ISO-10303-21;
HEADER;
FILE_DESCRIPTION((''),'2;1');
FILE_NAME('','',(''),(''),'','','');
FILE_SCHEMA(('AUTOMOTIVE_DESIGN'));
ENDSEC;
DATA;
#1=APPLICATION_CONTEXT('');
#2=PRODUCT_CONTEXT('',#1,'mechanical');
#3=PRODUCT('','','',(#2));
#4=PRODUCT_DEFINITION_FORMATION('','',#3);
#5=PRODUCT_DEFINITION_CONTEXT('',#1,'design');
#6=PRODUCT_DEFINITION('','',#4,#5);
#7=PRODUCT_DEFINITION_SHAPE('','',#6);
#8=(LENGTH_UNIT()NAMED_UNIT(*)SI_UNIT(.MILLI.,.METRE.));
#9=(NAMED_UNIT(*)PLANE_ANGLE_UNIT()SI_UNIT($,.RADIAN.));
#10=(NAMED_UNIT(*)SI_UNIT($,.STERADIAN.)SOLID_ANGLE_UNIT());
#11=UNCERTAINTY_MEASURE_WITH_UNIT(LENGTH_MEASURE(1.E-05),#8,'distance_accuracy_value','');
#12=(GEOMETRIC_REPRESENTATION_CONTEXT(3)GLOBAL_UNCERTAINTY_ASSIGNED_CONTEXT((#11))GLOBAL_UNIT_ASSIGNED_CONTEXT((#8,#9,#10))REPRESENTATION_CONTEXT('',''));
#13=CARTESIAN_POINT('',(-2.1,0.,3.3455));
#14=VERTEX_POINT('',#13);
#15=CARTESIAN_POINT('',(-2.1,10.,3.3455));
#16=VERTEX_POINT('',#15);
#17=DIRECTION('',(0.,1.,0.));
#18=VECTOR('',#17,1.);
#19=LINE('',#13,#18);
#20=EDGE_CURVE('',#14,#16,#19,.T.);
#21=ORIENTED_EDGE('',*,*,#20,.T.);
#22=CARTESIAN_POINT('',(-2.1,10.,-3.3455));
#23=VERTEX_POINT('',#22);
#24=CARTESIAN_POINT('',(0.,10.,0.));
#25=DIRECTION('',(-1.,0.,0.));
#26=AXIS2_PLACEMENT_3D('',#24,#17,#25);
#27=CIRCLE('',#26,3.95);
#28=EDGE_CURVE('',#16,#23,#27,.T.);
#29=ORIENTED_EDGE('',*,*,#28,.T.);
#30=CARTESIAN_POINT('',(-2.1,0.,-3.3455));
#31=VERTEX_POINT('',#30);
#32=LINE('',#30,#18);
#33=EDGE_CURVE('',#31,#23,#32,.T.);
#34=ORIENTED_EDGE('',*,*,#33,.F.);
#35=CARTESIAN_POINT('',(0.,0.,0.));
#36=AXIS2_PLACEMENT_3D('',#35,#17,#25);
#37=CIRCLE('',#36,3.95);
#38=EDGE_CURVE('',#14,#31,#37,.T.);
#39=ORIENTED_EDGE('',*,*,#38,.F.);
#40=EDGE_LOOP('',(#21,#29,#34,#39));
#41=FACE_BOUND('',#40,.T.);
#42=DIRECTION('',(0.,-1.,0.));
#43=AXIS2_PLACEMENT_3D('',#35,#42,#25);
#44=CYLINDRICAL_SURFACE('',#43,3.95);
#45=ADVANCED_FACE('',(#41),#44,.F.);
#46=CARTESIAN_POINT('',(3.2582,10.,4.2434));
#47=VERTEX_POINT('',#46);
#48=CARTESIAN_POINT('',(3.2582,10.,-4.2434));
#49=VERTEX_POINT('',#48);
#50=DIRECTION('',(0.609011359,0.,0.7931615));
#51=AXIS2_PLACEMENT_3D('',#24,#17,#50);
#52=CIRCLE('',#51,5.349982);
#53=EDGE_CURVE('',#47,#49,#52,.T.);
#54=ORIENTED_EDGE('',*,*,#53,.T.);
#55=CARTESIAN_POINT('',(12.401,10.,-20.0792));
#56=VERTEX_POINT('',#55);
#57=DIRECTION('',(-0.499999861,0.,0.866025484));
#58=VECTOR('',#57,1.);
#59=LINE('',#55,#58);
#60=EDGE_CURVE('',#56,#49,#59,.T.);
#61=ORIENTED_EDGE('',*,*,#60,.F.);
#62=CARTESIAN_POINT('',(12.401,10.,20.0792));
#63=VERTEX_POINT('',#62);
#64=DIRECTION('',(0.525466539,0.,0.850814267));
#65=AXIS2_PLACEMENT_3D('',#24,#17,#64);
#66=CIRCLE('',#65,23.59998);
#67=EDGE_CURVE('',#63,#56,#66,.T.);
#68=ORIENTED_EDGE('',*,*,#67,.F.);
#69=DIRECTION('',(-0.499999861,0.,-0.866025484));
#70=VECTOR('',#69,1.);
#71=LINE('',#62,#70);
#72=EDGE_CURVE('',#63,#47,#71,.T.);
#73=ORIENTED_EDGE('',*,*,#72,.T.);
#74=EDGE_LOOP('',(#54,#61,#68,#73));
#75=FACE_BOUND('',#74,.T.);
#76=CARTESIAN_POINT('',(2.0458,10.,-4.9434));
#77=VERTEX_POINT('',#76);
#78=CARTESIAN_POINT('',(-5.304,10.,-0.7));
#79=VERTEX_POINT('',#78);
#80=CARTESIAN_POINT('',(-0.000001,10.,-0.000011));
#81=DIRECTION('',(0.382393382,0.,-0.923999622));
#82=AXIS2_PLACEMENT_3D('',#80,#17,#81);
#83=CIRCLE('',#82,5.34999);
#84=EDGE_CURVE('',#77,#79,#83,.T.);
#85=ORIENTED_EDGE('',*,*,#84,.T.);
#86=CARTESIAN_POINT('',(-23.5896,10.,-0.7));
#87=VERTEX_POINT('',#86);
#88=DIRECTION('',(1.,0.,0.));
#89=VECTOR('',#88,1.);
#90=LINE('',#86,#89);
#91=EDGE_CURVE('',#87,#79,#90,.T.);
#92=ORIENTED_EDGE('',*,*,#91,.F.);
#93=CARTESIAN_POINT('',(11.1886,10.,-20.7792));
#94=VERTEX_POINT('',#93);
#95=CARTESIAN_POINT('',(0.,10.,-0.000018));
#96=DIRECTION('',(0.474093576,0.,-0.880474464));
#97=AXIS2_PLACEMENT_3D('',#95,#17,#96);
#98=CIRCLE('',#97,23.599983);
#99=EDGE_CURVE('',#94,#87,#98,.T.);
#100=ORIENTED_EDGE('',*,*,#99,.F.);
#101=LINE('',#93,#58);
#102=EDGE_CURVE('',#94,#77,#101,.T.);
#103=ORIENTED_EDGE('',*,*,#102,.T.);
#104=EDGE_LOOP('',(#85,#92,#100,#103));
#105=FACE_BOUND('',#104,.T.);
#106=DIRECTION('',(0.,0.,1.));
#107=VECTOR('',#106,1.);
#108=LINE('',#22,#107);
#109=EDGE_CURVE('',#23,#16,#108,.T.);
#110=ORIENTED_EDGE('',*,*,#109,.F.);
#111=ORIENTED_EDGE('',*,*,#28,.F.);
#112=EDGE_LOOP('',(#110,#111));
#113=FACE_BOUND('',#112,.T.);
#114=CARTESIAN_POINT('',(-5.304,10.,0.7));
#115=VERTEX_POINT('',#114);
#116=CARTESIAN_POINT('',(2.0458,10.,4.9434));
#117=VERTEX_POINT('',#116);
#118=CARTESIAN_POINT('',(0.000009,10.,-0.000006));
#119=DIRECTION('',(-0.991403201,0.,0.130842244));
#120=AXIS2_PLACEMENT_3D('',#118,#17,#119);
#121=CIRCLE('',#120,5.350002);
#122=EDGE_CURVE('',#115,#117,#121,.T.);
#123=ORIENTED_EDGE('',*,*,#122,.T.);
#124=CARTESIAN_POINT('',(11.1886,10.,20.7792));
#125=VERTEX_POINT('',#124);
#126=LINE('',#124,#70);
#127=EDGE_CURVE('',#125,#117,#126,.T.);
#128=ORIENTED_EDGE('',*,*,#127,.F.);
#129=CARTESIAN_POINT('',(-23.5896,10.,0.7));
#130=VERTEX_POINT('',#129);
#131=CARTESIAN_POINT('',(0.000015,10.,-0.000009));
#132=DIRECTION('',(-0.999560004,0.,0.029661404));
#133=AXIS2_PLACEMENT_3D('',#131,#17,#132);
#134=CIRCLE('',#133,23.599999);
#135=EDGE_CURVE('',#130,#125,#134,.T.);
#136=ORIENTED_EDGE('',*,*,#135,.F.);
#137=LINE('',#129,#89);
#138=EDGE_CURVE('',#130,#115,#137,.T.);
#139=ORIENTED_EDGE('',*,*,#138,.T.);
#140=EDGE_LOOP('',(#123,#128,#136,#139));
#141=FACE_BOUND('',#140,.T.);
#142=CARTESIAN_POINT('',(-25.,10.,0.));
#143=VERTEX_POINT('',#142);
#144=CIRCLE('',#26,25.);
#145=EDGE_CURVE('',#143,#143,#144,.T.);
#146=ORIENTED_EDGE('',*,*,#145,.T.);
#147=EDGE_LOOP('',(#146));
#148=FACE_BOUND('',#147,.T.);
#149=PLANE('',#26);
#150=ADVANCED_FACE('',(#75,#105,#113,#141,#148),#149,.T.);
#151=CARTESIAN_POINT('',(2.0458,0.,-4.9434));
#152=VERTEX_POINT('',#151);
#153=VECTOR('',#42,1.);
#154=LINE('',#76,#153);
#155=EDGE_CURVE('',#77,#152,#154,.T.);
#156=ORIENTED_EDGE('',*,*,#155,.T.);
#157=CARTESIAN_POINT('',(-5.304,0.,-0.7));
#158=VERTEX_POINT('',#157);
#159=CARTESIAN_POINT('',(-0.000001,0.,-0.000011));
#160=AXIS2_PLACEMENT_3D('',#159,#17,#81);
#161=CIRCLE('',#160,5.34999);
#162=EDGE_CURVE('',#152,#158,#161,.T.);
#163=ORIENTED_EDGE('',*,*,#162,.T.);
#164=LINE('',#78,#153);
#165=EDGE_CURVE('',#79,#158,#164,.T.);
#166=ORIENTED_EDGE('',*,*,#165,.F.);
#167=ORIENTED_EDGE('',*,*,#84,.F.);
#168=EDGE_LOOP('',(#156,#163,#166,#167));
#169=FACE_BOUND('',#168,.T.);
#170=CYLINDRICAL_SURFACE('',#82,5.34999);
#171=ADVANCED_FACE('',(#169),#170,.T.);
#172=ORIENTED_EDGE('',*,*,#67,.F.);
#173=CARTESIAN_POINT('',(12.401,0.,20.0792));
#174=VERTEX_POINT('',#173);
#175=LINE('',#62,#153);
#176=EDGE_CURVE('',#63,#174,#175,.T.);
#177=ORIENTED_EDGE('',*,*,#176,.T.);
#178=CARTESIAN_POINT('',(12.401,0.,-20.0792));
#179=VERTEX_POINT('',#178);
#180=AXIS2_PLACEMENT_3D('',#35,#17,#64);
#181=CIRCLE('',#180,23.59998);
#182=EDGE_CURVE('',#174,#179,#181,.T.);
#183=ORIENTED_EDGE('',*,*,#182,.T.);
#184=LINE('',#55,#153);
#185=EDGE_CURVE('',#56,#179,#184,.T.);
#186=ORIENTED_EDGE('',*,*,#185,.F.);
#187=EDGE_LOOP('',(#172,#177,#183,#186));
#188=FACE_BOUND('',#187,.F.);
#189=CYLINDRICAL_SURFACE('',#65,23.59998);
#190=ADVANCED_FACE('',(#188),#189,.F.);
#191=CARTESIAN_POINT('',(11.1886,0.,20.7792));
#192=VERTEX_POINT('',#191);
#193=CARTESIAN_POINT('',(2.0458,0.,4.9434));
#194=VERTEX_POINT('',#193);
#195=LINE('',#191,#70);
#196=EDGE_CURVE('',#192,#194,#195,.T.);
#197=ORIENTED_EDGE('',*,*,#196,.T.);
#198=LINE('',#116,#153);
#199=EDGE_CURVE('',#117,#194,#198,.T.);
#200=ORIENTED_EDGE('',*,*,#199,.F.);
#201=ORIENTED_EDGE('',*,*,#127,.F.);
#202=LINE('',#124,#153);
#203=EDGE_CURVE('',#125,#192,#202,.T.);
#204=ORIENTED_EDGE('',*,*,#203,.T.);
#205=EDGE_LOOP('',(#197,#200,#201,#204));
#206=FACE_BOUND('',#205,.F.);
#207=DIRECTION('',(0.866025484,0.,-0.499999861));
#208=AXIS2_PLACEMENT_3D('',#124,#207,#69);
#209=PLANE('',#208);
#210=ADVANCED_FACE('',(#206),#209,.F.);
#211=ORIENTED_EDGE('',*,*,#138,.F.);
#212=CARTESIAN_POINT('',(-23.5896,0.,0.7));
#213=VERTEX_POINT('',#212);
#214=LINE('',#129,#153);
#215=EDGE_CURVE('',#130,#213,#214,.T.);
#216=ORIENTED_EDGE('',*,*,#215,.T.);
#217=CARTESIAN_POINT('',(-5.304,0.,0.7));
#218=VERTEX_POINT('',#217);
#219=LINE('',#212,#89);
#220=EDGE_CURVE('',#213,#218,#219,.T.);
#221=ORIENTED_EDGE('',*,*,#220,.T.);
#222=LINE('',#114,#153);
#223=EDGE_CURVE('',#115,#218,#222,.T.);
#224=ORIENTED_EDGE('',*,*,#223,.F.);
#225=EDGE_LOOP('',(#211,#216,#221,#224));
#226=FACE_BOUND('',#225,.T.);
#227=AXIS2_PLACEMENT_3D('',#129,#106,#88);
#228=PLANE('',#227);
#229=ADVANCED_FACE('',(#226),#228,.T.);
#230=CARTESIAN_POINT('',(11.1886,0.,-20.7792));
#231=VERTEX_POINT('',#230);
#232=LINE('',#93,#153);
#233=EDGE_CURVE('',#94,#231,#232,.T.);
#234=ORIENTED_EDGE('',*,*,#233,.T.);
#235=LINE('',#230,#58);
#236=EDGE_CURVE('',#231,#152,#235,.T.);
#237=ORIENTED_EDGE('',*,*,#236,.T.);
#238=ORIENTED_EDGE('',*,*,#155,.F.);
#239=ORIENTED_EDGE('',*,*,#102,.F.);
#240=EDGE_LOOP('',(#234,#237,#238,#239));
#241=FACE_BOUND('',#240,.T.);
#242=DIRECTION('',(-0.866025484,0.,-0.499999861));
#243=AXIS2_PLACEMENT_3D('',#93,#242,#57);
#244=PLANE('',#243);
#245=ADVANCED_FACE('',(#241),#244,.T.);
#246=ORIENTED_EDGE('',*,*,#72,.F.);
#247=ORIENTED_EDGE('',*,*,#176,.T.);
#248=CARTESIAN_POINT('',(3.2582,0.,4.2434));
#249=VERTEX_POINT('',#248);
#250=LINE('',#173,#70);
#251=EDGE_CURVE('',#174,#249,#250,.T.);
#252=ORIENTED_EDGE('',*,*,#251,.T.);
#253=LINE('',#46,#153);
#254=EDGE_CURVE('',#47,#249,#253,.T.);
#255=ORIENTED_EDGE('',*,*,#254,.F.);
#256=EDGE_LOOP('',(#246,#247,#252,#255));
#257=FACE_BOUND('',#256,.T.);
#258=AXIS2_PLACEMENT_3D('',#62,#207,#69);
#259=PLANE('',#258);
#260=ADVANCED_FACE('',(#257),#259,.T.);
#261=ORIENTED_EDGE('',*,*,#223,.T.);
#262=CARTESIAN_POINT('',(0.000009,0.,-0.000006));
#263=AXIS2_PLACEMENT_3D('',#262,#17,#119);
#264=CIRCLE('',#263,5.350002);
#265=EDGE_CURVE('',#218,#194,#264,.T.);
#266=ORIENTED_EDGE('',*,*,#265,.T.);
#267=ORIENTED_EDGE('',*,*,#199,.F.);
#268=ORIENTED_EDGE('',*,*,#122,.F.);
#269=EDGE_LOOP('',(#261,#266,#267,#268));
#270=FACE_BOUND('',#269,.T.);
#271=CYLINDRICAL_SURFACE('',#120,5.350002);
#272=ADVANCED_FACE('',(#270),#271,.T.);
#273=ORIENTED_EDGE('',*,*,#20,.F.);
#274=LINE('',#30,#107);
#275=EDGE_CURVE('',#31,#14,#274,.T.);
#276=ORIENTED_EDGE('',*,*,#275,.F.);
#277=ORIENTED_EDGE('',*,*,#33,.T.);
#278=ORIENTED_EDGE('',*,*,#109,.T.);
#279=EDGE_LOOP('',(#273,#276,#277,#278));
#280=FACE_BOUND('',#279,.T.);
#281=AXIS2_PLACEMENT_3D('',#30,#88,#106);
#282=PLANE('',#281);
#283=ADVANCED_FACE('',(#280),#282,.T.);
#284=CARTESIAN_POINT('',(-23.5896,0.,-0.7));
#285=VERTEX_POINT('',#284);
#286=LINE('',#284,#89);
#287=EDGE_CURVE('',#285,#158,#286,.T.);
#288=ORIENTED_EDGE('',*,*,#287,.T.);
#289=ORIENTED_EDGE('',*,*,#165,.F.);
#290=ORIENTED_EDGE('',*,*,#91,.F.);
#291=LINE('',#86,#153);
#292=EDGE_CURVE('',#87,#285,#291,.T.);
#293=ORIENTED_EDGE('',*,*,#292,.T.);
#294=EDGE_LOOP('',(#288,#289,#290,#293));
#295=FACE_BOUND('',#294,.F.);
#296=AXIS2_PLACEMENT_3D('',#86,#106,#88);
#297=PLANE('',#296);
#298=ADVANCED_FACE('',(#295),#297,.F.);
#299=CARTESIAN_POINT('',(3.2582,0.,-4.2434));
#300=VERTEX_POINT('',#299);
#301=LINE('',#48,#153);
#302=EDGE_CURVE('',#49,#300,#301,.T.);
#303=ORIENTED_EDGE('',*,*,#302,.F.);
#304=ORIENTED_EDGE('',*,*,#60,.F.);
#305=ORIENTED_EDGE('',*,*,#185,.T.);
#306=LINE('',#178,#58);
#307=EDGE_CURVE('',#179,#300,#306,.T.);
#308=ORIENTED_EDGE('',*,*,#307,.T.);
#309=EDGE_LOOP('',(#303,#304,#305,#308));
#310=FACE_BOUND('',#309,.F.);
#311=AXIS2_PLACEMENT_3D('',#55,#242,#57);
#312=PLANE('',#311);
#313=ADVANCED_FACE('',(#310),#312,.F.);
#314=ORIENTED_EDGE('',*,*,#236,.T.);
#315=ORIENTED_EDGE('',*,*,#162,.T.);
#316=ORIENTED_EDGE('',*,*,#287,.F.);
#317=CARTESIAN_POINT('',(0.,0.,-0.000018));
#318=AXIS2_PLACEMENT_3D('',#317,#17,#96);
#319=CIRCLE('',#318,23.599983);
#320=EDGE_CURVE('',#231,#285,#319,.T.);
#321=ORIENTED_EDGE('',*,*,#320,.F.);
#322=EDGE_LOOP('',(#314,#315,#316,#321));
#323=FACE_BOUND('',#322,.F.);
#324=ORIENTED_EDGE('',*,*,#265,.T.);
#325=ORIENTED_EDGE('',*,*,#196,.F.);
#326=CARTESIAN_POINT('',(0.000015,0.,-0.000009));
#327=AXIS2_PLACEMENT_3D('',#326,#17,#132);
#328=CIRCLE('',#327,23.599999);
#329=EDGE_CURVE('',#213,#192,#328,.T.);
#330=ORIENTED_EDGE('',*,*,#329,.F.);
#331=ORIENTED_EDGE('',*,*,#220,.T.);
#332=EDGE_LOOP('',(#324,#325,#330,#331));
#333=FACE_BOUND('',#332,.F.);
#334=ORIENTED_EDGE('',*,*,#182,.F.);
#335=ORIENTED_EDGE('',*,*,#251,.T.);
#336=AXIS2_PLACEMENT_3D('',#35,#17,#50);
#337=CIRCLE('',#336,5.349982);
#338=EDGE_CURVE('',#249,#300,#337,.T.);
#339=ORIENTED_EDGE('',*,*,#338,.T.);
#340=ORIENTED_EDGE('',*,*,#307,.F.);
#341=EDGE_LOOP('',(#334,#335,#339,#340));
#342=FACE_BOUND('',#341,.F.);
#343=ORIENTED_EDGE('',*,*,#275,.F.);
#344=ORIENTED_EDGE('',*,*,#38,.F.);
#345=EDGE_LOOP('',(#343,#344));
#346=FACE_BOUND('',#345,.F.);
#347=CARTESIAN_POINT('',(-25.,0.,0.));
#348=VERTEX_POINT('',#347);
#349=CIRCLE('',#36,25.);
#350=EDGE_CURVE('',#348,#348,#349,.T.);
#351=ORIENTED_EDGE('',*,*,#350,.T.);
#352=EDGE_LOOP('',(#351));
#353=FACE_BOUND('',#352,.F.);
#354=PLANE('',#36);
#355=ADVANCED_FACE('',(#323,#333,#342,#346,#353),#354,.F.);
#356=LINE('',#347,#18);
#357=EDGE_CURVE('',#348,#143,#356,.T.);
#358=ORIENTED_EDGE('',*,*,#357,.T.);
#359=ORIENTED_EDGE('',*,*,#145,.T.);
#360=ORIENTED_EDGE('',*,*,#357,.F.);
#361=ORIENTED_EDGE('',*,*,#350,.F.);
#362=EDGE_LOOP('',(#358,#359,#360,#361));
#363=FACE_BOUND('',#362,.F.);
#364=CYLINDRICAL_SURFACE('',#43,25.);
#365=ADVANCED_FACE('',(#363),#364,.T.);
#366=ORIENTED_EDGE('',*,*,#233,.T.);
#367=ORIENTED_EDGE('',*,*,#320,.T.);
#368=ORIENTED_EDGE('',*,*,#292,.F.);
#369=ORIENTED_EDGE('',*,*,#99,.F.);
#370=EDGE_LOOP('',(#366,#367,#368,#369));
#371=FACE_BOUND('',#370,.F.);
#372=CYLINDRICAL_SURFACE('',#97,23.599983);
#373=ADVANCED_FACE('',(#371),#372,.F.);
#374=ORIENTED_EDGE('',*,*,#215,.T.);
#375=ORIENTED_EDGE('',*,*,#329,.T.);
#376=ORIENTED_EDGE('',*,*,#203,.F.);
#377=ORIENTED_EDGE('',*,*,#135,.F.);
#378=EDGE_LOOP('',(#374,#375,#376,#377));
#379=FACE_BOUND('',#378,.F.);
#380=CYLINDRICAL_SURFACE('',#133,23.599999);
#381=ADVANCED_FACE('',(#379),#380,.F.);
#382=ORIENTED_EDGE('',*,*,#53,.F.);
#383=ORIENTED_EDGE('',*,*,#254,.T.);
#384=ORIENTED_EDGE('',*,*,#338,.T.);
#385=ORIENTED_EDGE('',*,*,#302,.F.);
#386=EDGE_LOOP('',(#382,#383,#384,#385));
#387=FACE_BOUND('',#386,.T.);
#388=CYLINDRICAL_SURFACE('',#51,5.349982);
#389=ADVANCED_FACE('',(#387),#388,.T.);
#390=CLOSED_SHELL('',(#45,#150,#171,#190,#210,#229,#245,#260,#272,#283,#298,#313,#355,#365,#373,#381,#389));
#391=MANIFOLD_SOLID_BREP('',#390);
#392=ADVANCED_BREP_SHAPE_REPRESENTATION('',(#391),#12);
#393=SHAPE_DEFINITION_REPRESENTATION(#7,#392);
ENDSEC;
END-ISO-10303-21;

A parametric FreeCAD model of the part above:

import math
import FreeCAD as App
import Part
import Sketcher

V = App.Vector
Q = App.Units.Quantity

doc = App.newDocument("Part")
params = doc.addObject("Spreadsheet::Sheet", "Params")
for row, (alias, value) in enumerate([
    ("sketch1_diameter", "50 mm"),
    ("sketch1_radius", "3.95 mm"),
    ("pad1_length", "10 mm"),
    ("sketch2_radius", "23.6 mm"),
    ("sketch2_radius2", "5.35 mm"),
    ("pocket1_length", "10 mm"),
], start=1):
    params.set(f"A{row}", alias)
    params.set(f"B{row}", "=" + value)
    params.setAlias(f"B{row}", alias)

body = doc.addObject("PartDesign::Body", "Body")

sketch1 = doc.addObject("Sketcher::SketchObject", "Sketch")
body.addObject(sketch1)
sketch1.AttachmentSupport = (doc.XZ_Plane, [""])
sketch1.MapMode = "FlatFace"
sketch1.addGeometry([
    Part.Circle(V(0, 0, 0), V(0, 0, 1), 25),
    Part.ArcOfCircle(Part.Circle(V(0, 0, 0), V(0, 0, 1), 4), math.radians(-122), math.radians(122)),
    Part.LineSegment(V(-2.1, -3.3, 0), V(-2.1, 3.3, 0)),
], False)
sketch1.addConstraint([
    Sketcher.Constraint("Coincident", 1, 1, 2, 1),
    Sketcher.Constraint("Coincident", 2, 2, 1, 2),
    Sketcher.Constraint("Vertical", 2),
    Sketcher.Constraint("Coincident", 0, 3, -1, 1),
    Sketcher.Constraint("Coincident", 1, 3, -1, 1),
    Sketcher.Constraint("Diameter", 0, Q("50 mm")),
    Sketcher.Constraint("Radius", 1, Q("3.95 mm")),
    Sketcher.Constraint("DistanceX", 1, 1, -1, 1, Q("2.1 mm")),
])
sketch1.setExpression("Constraints[5]", "Params.sketch1_diameter")
sketch1.setExpression("Constraints[6]", "Params.sketch1_radius")
pad1 = doc.addObject("PartDesign::Pad", "Pad")
body.addObject(pad1)
pad1.Profile = sketch1
pad1.setExpression("Length", "Params.pad1_length")
pad1.Reversed = True

sketch2 = doc.addObject("Sketcher::SketchObject", "Sketch001")
body.addObject(sketch2)
sketch2.AttachmentSupport = (doc.XZ_Plane, [""])
sketch2.MapMode = "FlatFace"
sketch2.AttachmentOffset = App.Placement(V(0, 0, -10), App.Rotation())
sketch2.addGeometry([
    Part.LineSegment(V(-5, 1, 0), V(-24, 1, 0)),
    Part.ArcOfCircle(Part.Circle(V(0, 0, 0), V(0, 0, 1), 24), math.radians(62), math.radians(178)),
    Part.LineSegment(V(11, 21, 0), V(2, 5, 0)),
    Part.ArcOfCircle(Part.Circle(V(0, 0, 0), V(0, 0, 1), 5), math.radians(68), math.radians(172)),
    Part.ArcOfCircle(Part.Circle(V(0, 0, 0), V(0, 0, 1), 24), math.radians(-178), math.radians(-62)),
    Part.LineSegment(V(-24, -1, 0), V(-5, -1, 0)),
    Part.ArcOfCircle(Part.Circle(V(0, 0, 0), V(0, 0, 1), 5), math.radians(-172), math.radians(-68)),
    Part.LineSegment(V(2, -5, 0), V(11, -21, 0)),
    Part.ArcOfCircle(Part.Circle(V(0, 0, 0), V(0, 0, 1), 24), math.radians(-58), math.radians(58)),
    Part.LineSegment(V(12, -20, 0), V(3, -4, 0)),
    Part.ArcOfCircle(Part.Circle(V(0, 0, 0), V(0, 0, 1), 5), math.radians(-52), math.radians(52)),
    Part.LineSegment(V(3, 4, 0), V(12, 20, 0)),
], False)
sketch2.addConstraint([
    Sketcher.Constraint("Coincident", 0, 2, 1, 2),
    Sketcher.Constraint("Coincident", 1, 1, 2, 1),
    Sketcher.Constraint("Coincident", 2, 2, 3, 1),
    Sketcher.Constraint("Coincident", 3, 2, 0, 1),
    Sketcher.Constraint("Coincident", 4, 1, 5, 1),
    Sketcher.Constraint("Coincident", 5, 2, 6, 1),
    Sketcher.Constraint("Coincident", 6, 2, 7, 1),
    Sketcher.Constraint("Coincident", 7, 2, 4, 2),
    Sketcher.Constraint("Coincident", 8, 1, 9, 1),
    Sketcher.Constraint("Coincident", 9, 2, 10, 1),
    Sketcher.Constraint("Coincident", 10, 2, 11, 1),
    Sketcher.Constraint("Coincident", 11, 2, 8, 2),
    Sketcher.Constraint("Horizontal", 0),
    Sketcher.Constraint("Horizontal", 5),
    Sketcher.Constraint("Coincident", 1, 3, -1, 1),
    Sketcher.Constraint("Coincident", 3, 3, -1, 1),
    Sketcher.Constraint("Coincident", 4, 3, -1, 1),
    Sketcher.Constraint("Coincident", 6, 3, -1, 1),
    Sketcher.Constraint("Coincident", 8, 3, -1, 1),
    Sketcher.Constraint("Coincident", 10, 3, -1, 1),
    Sketcher.Constraint("Equal", 1, 4),
    Sketcher.Constraint("Equal", 3, 6),
    Sketcher.Constraint("Equal", 4, 8),
    Sketcher.Constraint("Equal", 6, 10),
    Sketcher.Constraint("Parallel", 7, 9),
    Sketcher.Constraint("Parallel", 2, 11),
    Sketcher.Constraint("Vertical", 0, 2, 4, 1),
    Sketcher.Constraint("Vertical", 2, 2, 6, 2),
    Sketcher.Constraint("Vertical", 1, 1, 7, 2),
    Sketcher.Constraint("Vertical", 9, 2, 10, 2),
    Sketcher.Constraint("Equal", 7, 9),
    Sketcher.Constraint("Radius", 1, Q("23.6 mm")),
    Sketcher.Constraint("DistanceY", 4, 1, 0, 2, Q("1.4 mm")),
    Sketcher.Constraint("Angle", 2, Q("-120 deg")),
    Sketcher.Constraint("Radius", 3, Q("5.35 mm")),
    Sketcher.Constraint("DistanceY", 7, 2, 8, 1, Q("0.7 mm")),
])
sketch2.setExpression("Constraints[31]", "Params.sketch2_radius")
sketch2.setExpression("Constraints[34]", "Params.sketch2_radius2")
pocket1 = doc.addObject("PartDesign::Pocket", "Pocket")
body.addObject(pocket1)
pocket1.Profile = sketch2
pocket1.setExpression("Length", "Params.pocket1_length")
pocket1.Reversed = True

doc.recompute()
